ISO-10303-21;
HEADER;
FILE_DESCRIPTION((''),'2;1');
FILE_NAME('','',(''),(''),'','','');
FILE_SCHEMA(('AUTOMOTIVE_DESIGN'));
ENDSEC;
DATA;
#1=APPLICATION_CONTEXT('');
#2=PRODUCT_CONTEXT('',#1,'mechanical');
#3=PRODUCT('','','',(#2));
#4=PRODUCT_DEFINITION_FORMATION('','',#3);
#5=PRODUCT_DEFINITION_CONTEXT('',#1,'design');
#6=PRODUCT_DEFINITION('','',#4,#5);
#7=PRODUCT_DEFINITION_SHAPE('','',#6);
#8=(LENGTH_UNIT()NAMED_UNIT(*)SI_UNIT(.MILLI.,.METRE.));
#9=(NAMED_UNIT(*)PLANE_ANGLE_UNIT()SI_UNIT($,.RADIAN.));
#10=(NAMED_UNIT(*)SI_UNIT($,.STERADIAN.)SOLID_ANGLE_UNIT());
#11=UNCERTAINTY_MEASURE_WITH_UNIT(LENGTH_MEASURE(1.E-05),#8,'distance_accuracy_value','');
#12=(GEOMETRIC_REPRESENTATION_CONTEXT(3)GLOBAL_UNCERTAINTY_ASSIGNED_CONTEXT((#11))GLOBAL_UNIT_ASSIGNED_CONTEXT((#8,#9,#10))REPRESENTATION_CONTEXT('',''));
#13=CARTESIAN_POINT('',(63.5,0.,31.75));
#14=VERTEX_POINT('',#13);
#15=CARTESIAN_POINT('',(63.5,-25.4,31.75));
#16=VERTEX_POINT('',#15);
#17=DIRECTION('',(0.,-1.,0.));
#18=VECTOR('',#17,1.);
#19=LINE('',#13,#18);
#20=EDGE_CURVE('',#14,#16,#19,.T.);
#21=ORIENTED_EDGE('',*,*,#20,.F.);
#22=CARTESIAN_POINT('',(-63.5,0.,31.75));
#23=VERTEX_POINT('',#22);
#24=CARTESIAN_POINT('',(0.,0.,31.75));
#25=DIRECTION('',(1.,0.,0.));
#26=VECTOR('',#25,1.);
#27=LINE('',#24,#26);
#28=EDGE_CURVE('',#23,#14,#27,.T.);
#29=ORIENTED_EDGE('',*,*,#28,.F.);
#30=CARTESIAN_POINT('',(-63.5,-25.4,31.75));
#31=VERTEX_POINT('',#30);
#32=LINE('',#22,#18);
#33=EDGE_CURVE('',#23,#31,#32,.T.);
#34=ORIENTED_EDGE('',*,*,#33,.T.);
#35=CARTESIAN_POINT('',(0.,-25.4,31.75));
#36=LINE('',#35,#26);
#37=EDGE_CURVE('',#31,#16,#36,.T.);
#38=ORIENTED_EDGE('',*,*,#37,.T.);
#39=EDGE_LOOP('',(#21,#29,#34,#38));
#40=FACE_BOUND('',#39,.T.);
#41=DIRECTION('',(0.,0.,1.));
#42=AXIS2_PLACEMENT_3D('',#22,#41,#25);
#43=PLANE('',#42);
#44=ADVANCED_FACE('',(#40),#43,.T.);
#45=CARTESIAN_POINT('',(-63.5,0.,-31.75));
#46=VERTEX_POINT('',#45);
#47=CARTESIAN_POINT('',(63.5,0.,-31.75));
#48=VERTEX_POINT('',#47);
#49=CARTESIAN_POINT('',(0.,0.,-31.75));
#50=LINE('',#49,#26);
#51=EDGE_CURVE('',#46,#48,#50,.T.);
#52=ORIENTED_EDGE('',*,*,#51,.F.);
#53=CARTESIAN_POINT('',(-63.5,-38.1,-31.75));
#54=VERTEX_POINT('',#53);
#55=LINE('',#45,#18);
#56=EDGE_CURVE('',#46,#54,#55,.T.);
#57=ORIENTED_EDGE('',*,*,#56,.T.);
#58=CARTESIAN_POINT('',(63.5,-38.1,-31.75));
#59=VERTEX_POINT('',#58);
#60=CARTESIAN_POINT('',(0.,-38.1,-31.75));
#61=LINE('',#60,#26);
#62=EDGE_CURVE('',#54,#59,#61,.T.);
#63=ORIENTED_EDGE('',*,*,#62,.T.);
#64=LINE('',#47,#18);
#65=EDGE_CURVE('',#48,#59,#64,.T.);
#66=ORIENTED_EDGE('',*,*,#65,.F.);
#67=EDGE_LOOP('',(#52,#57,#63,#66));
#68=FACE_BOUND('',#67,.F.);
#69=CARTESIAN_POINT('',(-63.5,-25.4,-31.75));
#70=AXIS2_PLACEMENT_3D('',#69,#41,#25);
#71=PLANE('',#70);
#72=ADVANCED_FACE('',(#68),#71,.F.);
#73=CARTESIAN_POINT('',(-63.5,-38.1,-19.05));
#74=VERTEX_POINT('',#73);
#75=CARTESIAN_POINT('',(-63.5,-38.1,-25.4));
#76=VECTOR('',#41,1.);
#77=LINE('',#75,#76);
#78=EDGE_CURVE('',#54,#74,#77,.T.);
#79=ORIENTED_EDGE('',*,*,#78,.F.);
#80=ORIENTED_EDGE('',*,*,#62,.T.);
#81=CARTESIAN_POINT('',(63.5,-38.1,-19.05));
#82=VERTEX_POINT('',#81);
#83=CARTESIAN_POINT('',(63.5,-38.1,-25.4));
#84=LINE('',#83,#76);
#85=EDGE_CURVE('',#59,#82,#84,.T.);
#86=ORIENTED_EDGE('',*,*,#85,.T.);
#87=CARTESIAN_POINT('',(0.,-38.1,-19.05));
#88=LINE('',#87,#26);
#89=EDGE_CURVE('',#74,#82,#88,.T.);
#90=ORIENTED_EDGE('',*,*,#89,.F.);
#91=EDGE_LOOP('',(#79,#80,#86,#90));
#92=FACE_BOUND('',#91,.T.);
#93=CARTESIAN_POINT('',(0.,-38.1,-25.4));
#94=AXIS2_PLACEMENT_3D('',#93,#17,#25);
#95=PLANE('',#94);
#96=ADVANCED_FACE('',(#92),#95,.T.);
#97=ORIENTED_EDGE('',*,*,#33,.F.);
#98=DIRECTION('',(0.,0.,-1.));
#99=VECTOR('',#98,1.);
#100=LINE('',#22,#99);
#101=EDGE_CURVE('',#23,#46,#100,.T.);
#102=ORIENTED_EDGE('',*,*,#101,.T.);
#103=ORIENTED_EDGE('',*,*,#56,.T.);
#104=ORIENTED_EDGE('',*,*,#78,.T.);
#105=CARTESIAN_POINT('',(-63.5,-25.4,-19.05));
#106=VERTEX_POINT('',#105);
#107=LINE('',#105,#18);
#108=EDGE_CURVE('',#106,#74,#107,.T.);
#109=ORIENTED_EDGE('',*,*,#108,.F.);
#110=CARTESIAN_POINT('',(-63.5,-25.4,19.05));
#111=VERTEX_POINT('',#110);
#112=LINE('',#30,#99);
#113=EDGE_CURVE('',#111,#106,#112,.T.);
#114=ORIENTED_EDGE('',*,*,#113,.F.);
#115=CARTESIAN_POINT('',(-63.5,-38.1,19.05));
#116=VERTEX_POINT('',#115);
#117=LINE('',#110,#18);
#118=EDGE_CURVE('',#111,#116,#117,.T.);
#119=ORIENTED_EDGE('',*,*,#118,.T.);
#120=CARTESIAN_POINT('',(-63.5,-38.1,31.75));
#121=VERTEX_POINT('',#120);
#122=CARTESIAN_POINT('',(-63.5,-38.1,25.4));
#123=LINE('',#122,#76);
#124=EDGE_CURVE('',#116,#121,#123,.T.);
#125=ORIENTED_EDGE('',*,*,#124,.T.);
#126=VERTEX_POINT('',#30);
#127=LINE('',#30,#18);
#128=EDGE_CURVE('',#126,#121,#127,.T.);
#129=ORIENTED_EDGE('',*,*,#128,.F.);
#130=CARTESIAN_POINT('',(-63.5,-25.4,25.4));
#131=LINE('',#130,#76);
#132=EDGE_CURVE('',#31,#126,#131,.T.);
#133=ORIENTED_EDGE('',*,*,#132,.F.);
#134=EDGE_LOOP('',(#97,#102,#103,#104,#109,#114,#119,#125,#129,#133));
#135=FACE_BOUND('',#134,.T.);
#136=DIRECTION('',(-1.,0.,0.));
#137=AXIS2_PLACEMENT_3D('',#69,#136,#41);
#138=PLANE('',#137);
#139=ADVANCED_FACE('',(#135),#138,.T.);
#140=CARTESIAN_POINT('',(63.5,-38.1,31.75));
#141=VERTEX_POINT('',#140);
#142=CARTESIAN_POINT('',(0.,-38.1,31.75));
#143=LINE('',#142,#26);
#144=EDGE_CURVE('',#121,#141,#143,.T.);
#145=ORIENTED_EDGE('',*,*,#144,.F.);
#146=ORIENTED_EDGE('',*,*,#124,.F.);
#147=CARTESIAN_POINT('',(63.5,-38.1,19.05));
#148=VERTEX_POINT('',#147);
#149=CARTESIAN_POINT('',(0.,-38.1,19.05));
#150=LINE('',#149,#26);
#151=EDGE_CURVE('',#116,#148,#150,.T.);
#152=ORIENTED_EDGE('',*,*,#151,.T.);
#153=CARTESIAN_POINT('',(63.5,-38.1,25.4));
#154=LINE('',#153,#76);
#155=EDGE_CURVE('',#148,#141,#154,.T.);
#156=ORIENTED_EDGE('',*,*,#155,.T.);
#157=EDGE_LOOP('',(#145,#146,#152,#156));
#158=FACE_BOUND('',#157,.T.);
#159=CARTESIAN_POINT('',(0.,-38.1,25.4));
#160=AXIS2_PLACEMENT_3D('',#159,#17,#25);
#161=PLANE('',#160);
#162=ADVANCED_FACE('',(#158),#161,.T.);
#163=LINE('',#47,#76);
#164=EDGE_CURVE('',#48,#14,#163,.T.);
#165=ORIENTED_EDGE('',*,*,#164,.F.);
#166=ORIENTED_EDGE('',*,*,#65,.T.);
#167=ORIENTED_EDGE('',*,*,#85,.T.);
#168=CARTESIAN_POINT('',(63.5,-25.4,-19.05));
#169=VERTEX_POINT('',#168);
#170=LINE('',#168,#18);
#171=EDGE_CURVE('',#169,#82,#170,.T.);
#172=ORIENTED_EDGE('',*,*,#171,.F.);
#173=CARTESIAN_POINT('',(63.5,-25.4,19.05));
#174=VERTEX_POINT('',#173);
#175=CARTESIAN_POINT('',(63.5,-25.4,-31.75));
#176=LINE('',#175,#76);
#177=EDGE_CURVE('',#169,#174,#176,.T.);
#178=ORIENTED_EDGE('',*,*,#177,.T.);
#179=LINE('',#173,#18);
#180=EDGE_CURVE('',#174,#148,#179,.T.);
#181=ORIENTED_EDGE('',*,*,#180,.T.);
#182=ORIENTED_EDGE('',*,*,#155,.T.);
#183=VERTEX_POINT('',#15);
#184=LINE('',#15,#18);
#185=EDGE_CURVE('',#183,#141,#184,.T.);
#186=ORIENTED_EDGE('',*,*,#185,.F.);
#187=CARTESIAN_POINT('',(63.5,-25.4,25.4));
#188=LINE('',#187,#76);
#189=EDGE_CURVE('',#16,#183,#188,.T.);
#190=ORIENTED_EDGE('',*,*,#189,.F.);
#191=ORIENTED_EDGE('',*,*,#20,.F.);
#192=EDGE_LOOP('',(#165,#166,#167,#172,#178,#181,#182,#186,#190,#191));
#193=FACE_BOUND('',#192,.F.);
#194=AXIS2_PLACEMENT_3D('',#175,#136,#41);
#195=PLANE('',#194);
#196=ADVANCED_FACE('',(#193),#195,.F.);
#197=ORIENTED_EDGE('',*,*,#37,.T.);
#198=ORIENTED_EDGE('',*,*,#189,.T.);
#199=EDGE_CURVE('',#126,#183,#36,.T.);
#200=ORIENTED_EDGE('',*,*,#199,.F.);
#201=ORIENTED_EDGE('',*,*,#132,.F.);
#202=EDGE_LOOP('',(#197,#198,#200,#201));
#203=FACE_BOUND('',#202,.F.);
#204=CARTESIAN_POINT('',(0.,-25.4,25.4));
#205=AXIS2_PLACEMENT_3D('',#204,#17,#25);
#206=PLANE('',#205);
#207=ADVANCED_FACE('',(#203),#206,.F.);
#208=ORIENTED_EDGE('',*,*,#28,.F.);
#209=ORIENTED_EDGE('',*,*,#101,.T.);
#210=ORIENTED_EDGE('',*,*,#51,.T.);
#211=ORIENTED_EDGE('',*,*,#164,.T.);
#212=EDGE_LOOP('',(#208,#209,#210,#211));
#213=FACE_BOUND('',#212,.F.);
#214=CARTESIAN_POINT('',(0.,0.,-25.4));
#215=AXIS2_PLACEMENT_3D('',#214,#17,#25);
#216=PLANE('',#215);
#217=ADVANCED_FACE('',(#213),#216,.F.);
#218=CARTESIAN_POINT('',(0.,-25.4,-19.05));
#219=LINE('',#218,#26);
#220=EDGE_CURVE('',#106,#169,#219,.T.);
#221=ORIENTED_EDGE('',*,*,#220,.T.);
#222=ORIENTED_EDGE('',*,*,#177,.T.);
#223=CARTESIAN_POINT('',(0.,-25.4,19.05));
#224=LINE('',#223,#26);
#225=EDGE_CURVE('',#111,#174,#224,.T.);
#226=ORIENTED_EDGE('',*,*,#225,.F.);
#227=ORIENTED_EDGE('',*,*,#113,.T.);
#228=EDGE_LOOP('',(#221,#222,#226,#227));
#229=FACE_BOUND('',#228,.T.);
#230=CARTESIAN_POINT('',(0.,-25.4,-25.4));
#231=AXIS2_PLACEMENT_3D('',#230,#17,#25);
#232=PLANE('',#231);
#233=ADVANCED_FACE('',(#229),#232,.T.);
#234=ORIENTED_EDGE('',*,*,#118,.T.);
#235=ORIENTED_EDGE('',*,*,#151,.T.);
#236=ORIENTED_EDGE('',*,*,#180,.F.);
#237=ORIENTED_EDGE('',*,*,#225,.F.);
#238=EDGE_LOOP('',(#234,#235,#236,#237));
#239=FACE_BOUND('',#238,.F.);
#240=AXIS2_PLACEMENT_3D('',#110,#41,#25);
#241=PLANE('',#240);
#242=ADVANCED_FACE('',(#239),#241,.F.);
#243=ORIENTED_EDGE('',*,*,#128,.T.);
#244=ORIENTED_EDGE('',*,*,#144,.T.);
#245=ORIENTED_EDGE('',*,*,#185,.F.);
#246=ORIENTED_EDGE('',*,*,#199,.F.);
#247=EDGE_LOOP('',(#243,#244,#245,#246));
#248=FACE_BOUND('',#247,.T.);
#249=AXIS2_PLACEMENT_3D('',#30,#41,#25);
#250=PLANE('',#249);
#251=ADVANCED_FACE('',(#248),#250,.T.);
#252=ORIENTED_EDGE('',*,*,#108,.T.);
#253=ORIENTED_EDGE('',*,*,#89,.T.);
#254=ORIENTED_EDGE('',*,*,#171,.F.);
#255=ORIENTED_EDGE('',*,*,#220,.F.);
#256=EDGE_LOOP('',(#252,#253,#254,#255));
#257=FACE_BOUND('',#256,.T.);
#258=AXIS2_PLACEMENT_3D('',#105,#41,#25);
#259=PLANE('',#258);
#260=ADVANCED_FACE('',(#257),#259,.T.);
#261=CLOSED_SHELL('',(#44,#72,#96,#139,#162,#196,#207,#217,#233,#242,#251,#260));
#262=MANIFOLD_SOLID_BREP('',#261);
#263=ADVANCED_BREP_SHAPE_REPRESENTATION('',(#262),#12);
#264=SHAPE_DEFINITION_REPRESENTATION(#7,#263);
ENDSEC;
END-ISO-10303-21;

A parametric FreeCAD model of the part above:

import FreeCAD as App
import Part
import Sketcher

V = App.Vector
Q = App.Units.Quantity


def add_polygon(sketch, points):
    """Adds a closed chain of lines whose ends are joined by coincident constraints."""
    first, n = sketch.GeometryCount, len(points)
    for a, b in zip(points, points[1:] + points[:1]):
        sketch.addGeometry(Part.LineSegment(App.Vector(*a, 0), App.Vector(*b, 0)), False)
    for i in range(n):
        sketch.addConstraint(Sketcher.Constraint("Coincident", first + i, 2, first + (i + 1) % n, 1))

doc = App.newDocument("Part")
body = doc.addObject("PartDesign::Body", "Body")

# Sketch on XZ plane
sketch1 = doc.addObject("Sketcher::SketchObject", "Sketch")
body.addObject(sketch1)
sketch1.AttachmentSupport = (doc.XZ_Plane, [""])
sketch1.MapMode = "FlatFace"
add_polygon(sketch1, [(-64, -32), (64, -32), (64, 32), (-64, 32)])  # lines 0-3
sketch1.addConstraint(Sketcher.Constraint("Horizontal", 0))
sketch1.addConstraint(Sketcher.Constraint("Vertical", 1))
sketch1.addConstraint(Sketcher.Constraint("Horizontal", 2))
sketch1.addConstraint(Sketcher.Constraint("Vertical", 3))
sketch1.addConstraint(Sketcher.Constraint("Symmetric", 0, 2, 2, 2, -1, 1))
sketch1.addConstraint(Sketcher.Constraint("DistanceX", 0, 1, 0, 2, Q("5 in")))
sketch1.addConstraint(Sketcher.Constraint("DistanceY", 1, 1, 1, 2, Q("2.5 in")))
pad1 = doc.addObject("PartDesign::Pad", "Pad")
body.addObject(pad1)
pad1.Profile = sketch1
pad1.Length = Q("1 in")

# Sketch on XZ plane
sketch2 = doc.addObject("Sketcher::SketchObject", "Sketch001")
body.addObject(sketch2)
sketch2.AttachmentSupport = (doc.XZ_Plane, [""])
sketch2.MapMode = "FlatFace"
sketch2.AttachmentOffset = App.Placement(V(0, 0, 1 * 25.4), App.Rotation())
add_polygon(sketch2, [(-64, 32), (-64, 19), (64, 19), (64, 32)])  # lines 0-3
sketch2.addConstraint(Sketcher.Constraint("Vertical", 0))
sketch2.addConstraint(Sketcher.Constraint("Horizontal", 1))
sketch2.addConstraint(Sketcher.Constraint("Vertical", 2))
sketch2.addConstraint(Sketcher.Constraint("Horizontal", 3))
sketch2.addConstraint(Sketcher.Constraint("DistanceX", 1, 1, 1, 2, Q("5 in")))
sketch2.addConstraint(Sketcher.Constraint("DistanceY", 0, 2, 0, 1, Q("0.5 in")))
sketch2.addConstraint(Sketcher.Constraint("DistanceX", 0, 2, -1, 1, Q("2.5 in")))
sketch2.addConstraint(Sketcher.Constraint("DistanceY", -1, 1, 0, 2, Q("0.75 in")))
pad2 = doc.addObject("PartDesign::Pad", "Pad001")
body.addObject(pad2)
pad2.Profile = sketch2
pad2.Length = Q("0.5 in")

# Sketch on XZ plane
sketch3 = doc.addObject("Sketcher::SketchObject", "Sketch002")
body.addObject(sketch3)
sketch3.AttachmentSupport = (doc.XZ_Plane, [""])
sketch3.MapMode = "FlatFace"
sketch3.AttachmentOffset = App.Placement(V(0, 0, 1 * 25.4), App.Rotation())
add_polygon(sketch3, [(-64, -19), (-64, -32), (64, -32), (64, -19)])  # lines 0-3
sketch3.addConstraint(Sketcher.Constraint("Vertical", 0))
sketch3.addConstraint(Sketcher.Constraint("Horizontal", 1))
sketch3.addConstraint(Sketcher.Constraint("Vertical", 2))
sketch3.addConstraint(Sketcher.Constraint("Horizontal", 3))
sketch3.addConstraint(Sketcher.Constraint("DistanceX", 1, 1, 1, 2, Q("5 in")))
sketch3.addConstraint(Sketcher.Constraint("DistanceY", 0, 2, 0, 1, Q("0.5 in")))
sketch3.addConstraint(Sketcher.Constraint("DistanceX", 0, 2, -1, 1, Q("2.5 in")))
sketch3.addConstraint(Sketcher.Constraint("DistanceY", 0, 2, -1, 1, Q("1.25 in")))
pad3 = doc.addObject("PartDesign::Pad", "Pad002")
body.addObject(pad3)
pad3.Profile = sketch3
pad3.Length = Q("0.5 in")

doc.recompute()
